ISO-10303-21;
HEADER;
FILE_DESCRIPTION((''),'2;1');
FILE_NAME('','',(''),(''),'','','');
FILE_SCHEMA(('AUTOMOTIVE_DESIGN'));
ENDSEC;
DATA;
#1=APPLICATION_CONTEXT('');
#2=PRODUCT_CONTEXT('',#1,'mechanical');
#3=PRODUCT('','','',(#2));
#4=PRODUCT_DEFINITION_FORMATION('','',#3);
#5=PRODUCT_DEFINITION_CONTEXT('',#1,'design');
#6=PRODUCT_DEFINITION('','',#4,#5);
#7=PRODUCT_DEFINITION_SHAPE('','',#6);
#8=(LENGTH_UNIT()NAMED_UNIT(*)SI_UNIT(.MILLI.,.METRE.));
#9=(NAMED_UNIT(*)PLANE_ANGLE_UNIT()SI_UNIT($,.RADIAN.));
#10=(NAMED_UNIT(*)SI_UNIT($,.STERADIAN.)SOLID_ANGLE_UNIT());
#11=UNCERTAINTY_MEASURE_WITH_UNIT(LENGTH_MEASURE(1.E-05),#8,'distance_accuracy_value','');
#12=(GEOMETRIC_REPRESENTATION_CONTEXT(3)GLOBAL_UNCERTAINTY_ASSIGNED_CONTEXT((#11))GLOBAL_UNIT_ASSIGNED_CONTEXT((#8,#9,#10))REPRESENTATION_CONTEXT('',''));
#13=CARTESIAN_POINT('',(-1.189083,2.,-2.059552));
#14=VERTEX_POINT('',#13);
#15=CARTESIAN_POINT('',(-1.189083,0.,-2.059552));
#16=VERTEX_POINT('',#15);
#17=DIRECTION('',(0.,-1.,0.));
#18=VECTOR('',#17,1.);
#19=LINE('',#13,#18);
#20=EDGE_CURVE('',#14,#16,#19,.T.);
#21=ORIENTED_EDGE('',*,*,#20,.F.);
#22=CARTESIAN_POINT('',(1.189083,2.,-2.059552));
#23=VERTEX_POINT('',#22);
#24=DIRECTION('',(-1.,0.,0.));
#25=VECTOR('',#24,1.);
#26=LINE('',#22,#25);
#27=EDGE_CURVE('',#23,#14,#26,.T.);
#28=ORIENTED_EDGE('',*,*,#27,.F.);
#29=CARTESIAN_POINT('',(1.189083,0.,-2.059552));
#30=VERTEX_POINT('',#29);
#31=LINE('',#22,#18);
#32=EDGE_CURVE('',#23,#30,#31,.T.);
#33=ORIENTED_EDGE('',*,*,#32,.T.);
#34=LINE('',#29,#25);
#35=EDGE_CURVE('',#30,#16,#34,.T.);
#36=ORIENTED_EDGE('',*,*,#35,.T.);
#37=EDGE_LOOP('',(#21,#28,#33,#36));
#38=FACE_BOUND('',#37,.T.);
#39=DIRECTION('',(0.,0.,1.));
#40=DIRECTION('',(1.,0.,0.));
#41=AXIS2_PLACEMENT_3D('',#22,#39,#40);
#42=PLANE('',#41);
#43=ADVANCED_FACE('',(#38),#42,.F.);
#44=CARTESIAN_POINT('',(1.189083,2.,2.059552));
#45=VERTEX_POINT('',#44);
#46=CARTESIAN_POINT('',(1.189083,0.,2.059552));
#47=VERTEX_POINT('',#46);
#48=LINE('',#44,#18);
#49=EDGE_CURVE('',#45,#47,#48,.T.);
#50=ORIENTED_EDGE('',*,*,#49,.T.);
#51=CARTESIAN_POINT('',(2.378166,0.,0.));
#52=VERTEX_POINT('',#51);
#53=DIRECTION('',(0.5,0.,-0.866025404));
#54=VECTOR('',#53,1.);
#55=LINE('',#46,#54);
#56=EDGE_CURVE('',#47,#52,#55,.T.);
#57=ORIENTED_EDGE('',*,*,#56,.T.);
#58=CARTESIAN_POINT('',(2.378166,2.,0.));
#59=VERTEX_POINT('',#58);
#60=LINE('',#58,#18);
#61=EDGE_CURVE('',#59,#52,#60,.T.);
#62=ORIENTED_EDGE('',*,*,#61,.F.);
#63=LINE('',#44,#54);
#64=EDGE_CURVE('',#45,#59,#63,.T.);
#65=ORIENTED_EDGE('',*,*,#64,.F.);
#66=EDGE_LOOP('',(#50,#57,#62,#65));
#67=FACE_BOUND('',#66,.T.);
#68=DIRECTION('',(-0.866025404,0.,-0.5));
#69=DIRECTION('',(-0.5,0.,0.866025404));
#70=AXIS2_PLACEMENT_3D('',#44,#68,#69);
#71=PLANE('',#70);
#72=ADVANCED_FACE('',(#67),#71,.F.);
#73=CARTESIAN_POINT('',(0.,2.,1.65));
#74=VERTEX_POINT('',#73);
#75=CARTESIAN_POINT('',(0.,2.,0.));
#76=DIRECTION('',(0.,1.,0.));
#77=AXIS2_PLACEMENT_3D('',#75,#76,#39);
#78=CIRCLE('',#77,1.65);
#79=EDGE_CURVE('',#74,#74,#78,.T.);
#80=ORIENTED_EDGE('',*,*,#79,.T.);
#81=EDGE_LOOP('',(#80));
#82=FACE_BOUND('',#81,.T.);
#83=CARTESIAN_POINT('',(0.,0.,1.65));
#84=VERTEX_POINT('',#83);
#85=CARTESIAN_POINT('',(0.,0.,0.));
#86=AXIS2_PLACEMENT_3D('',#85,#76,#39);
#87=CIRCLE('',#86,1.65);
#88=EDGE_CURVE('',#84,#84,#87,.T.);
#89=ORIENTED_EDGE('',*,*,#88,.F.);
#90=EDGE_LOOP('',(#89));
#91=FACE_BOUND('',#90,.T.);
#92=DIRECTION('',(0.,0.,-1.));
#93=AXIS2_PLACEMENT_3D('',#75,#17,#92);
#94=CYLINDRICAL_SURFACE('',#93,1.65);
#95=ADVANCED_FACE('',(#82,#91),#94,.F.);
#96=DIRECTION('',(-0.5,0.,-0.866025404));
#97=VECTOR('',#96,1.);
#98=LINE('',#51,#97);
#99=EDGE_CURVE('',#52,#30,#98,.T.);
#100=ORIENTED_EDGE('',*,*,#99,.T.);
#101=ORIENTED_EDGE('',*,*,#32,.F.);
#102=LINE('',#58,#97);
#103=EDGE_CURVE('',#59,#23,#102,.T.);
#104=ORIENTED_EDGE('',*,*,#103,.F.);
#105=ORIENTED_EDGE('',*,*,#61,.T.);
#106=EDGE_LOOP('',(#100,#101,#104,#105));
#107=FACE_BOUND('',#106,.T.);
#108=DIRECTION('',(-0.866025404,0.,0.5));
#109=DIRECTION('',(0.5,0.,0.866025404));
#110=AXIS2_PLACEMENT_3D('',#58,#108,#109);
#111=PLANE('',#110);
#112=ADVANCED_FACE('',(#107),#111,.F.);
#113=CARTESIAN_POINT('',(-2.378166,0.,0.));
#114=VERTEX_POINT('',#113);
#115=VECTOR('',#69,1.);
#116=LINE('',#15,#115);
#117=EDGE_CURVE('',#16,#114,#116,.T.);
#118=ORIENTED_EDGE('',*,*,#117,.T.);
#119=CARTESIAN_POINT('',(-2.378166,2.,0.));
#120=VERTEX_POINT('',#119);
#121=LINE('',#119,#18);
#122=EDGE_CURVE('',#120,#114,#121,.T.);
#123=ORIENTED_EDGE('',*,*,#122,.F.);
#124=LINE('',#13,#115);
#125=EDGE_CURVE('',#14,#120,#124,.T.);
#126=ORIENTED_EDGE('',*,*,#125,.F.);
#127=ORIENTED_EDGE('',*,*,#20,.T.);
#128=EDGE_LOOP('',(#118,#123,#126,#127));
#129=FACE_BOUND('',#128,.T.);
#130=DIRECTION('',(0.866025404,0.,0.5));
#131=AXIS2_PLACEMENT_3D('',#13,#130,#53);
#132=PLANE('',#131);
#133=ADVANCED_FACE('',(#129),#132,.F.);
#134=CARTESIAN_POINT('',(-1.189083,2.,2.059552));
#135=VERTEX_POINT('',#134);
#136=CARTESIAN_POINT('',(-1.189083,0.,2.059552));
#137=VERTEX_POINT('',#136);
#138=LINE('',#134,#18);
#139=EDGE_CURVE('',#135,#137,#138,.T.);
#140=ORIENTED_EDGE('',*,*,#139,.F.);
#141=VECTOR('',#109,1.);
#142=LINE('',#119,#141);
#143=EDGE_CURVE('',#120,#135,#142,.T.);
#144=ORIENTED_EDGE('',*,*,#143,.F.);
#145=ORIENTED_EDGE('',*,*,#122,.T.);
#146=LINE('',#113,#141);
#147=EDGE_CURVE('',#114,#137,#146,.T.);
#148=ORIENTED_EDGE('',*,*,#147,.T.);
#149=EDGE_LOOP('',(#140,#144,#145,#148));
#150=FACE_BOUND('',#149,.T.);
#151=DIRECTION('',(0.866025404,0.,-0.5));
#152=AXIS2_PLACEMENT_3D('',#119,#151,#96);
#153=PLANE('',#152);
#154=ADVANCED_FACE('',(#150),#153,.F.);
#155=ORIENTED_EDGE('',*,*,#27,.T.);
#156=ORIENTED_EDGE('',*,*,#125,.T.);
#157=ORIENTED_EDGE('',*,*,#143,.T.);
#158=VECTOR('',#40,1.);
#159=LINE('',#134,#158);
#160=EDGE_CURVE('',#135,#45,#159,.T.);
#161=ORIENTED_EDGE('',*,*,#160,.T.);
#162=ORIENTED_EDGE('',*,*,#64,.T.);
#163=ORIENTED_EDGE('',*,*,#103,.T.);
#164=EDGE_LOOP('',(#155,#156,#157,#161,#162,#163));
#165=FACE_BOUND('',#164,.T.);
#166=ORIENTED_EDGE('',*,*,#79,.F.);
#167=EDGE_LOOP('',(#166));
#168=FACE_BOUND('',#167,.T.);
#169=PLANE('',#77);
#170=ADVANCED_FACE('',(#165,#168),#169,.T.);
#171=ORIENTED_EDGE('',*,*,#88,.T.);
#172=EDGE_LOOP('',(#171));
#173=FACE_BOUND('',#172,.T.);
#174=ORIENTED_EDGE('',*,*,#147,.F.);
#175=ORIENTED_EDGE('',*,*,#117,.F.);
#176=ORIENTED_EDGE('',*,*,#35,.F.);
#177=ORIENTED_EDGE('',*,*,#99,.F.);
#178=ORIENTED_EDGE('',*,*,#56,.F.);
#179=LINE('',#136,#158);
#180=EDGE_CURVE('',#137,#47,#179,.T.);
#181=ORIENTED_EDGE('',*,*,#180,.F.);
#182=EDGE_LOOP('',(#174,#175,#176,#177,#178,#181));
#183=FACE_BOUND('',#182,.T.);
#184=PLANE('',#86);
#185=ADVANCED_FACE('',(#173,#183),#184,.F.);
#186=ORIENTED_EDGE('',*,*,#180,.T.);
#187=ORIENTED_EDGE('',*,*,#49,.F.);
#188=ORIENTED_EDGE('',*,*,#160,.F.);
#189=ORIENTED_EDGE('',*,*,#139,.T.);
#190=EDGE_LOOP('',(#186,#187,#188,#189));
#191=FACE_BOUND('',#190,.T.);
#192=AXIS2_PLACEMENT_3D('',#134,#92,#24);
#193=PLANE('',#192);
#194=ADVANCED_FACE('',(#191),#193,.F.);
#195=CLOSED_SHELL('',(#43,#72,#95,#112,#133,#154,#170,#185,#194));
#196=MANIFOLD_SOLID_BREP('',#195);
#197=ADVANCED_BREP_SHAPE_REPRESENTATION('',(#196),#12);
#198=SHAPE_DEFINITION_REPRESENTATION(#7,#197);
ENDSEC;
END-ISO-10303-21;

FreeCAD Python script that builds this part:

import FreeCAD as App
import Part
import Sketcher

V = App.Vector
Q = App.Units.Quantity

doc = App.newDocument("Part")
body = doc.addObject("PartDesign::Body", "Body")

# Sketch on XZ plane
sketch1 = body.newObject("Sketcher::SketchObject", "Sketch")
sketch1.AttachmentSupport = (doc.getObject("XZ_Plane"), [""])
sketch1.MapMode = "FlatFace"
sketch1.addGeometry([
    Part.LineSegment(V(2.378166, 0, 0), V(1.189083, -2.059552, 0)),  # 0
    Part.LineSegment(V(1.189083, -2.059552, 0), V(-1.189083, -2.059552, 0)),  # 1
    Part.LineSegment(V(-1.189083, -2.059552, 0), V(-2.378166, 0, 0)),  # 2
    Part.LineSegment(V(-2.378166, 0, 0), V(-1.189083, 2.059552, 0)),  # 3
    Part.LineSegment(V(-1.189083, 2.059552, 0), V(1.189083, 2.059552, 0)),  # 4
    Part.LineSegment(V(1.189083, 2.059552, 0), V(2.378166, 0, 0)),  # 5
    Part.Circle(V(0, 0, 0), V(0, 0, 1), 1.65),  # 6
], False)
sketch1.addConstraint([
    Sketcher.Constraint("Coincident", 0, 2, 1, 1),
    Sketcher.Constraint("Coincident", 1, 2, 2, 1),
    Sketcher.Constraint("Coincident", 2, 2, 3, 1),
    Sketcher.Constraint("Coincident", 3, 2, 4, 1),
    Sketcher.Constraint("Coincident", 4, 2, 5, 1),
    Sketcher.Constraint("Coincident", 5, 2, 0, 1),
    Sketcher.Constraint("Horizontal", 1),
    Sketcher.Constraint("Horizontal", 4),
    Sketcher.Constraint("Coincident", 6, 3, -1, 1),
    Sketcher.Constraint("Symmetric", 0, 2, 3, 2, -1, 1),
    Sketcher.Constraint("Symmetric", 2, 2, 5, 2, -1, 1),
    Sketcher.Constraint("PointOnObject", 2, 2, -1),
    Sketcher.Constraint("Parallel", 2, 5),
    Sketcher.Constraint("Vertical", 1, 2, 3, 2),
    Sketcher.Constraint("Diameter", 6, Q("3.3 mm")),
    Sketcher.Constraint("Angle", 0, Q("-120 deg")),
    Sketcher.Constraint("DistanceX", 1, 2, 1, 1, Q("2.378166 mm")),
    Sketcher.Constraint("DistanceX", 2, 2, 0, 2, Q("3.567249 mm")),
])
pad1 = body.newObject("PartDesign::Pad", "Pad")
pad1.Profile = sketch1
pad1.Length = 2
pad1.Reversed = True

doc.recompute()
